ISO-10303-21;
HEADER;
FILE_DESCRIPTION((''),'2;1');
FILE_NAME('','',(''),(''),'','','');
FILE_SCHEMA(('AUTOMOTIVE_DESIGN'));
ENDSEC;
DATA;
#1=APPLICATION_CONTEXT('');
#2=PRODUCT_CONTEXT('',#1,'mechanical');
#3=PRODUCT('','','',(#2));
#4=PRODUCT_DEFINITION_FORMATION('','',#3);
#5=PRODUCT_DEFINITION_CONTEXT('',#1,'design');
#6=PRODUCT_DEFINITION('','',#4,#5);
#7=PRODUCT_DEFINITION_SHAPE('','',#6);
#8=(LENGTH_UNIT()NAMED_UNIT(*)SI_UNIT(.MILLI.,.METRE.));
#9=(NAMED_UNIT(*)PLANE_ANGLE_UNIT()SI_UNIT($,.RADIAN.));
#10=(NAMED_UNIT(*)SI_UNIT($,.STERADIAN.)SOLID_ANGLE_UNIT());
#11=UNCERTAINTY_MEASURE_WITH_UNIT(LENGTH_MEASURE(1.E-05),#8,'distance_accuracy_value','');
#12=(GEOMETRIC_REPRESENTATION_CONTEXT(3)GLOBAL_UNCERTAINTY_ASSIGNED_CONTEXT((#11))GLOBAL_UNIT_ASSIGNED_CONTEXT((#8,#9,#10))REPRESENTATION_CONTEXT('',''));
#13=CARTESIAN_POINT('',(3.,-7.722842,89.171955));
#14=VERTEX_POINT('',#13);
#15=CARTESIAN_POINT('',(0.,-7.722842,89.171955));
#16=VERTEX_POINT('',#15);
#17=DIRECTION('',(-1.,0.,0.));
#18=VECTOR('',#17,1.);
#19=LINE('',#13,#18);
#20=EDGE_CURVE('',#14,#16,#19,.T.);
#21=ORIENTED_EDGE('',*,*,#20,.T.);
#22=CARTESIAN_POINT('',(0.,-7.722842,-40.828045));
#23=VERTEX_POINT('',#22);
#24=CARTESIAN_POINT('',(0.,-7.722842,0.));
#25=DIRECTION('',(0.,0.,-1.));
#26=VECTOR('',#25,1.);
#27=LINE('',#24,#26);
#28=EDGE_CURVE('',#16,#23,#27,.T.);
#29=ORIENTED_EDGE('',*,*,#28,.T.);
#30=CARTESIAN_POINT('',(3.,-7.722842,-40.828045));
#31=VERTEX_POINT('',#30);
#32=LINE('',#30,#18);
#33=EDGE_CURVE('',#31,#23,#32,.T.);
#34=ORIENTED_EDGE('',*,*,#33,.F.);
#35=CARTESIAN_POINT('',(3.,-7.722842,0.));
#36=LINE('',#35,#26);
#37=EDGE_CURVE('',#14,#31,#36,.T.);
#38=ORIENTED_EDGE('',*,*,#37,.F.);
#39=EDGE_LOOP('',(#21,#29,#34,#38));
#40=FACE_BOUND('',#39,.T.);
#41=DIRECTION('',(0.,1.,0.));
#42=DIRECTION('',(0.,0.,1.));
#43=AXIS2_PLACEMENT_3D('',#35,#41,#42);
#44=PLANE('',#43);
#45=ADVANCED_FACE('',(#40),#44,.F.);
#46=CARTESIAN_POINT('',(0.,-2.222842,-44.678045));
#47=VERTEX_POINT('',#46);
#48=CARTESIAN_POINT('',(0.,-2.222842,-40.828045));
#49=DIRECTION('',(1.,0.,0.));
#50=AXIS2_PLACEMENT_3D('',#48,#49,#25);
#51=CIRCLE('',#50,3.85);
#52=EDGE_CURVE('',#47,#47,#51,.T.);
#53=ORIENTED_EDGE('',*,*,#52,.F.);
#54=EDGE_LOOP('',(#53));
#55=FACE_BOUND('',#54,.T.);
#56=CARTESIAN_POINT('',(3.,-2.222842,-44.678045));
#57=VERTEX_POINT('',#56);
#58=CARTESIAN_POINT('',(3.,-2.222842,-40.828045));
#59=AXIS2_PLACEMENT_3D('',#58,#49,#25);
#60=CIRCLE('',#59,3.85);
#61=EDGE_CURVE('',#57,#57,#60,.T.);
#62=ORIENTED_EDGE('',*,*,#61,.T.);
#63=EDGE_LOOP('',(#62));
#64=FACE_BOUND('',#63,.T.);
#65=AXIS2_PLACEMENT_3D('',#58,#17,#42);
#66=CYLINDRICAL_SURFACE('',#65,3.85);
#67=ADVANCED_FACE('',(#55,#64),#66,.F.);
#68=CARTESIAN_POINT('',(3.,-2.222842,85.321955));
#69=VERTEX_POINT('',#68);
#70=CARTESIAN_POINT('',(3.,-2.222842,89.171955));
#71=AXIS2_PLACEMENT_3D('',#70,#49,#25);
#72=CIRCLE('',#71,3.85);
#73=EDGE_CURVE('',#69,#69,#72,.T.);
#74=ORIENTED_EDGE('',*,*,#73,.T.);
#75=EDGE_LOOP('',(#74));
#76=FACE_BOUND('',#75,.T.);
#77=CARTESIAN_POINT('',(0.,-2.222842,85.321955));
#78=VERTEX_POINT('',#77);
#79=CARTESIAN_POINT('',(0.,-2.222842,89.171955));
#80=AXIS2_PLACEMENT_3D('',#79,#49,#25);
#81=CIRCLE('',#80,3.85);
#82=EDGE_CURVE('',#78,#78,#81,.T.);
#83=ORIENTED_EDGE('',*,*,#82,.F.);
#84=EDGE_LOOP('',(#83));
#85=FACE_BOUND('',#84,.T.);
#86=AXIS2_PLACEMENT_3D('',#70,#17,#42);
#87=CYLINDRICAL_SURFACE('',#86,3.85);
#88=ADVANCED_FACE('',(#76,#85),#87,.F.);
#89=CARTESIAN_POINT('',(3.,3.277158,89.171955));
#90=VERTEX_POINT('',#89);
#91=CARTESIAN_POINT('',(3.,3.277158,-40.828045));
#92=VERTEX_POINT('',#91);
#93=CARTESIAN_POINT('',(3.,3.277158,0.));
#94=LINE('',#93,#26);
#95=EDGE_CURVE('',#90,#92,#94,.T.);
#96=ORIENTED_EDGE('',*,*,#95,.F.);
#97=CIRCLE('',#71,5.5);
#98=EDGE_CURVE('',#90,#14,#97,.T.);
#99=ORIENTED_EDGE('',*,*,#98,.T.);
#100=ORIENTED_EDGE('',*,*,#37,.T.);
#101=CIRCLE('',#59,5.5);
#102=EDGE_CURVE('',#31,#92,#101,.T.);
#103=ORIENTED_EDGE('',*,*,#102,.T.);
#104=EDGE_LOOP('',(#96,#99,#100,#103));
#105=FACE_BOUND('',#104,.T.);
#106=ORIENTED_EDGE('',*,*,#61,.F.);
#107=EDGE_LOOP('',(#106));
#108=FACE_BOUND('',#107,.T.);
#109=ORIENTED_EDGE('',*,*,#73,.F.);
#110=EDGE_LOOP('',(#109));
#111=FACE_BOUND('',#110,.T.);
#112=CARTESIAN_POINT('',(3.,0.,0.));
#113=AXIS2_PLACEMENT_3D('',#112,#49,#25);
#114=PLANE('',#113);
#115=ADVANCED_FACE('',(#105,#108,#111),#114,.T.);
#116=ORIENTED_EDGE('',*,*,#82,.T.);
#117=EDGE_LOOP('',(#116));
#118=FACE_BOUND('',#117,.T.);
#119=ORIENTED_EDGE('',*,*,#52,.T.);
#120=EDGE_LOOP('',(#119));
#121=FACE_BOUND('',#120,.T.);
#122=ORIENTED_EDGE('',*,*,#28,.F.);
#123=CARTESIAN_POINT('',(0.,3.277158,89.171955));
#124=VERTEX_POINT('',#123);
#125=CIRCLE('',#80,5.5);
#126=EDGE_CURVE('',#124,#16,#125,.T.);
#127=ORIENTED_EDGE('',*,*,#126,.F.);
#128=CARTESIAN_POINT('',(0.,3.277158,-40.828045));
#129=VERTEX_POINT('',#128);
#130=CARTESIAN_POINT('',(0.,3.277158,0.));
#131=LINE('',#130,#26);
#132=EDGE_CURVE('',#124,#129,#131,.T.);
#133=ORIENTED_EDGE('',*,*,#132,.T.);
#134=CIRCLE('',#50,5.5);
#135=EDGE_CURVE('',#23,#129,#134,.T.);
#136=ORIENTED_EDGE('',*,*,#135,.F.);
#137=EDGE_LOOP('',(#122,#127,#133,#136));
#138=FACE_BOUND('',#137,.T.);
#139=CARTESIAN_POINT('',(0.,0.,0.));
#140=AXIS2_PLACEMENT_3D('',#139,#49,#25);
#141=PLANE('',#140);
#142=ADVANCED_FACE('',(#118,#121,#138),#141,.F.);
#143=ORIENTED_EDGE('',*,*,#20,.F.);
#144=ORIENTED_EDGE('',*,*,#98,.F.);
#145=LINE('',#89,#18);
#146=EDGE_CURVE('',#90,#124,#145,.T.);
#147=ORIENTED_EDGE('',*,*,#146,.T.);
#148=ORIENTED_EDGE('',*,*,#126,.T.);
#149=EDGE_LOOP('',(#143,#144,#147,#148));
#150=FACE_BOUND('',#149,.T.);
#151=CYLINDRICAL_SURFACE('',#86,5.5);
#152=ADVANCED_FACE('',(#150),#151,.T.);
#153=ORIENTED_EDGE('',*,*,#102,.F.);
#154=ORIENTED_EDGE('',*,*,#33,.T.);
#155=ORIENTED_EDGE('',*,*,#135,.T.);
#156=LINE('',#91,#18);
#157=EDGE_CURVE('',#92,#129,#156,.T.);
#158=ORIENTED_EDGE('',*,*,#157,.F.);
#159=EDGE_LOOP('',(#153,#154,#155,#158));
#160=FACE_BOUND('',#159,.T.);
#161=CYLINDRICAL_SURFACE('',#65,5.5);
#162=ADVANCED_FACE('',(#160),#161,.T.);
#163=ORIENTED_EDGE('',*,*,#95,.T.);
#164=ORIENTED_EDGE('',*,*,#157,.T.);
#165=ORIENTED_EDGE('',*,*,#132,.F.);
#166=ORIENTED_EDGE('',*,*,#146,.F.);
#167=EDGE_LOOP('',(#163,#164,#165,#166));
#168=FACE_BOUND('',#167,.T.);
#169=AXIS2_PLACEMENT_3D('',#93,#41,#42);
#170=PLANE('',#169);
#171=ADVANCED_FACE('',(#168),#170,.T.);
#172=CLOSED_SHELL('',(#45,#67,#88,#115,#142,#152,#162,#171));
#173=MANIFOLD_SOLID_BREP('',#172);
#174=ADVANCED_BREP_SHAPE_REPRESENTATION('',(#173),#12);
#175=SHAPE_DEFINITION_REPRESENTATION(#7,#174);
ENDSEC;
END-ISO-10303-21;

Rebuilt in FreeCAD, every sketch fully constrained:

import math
import FreeCAD as App
import Part
import Sketcher

V = App.Vector

doc = App.newDocument("Part")
body = doc.addObject("PartDesign::Body", "Body")

# Sketch on YZ plane
sketch1 = body.newObject("Sketcher::SketchObject", "Sketch")
sketch1.AttachmentSupport = (doc.getObject("YZ_Plane"), [""])
sketch1.MapMode = "FlatFace"
sketch1.addGeometry([
    Part.LineSegment(V(-8, 89, 0), V(-8, -41, 0)),  # 0
    Part.ArcOfCircle(Part.Circle(V(-2, -41, 0), V(0, 0, 1), 5), math.radians(180), math.radians(270)),  # 1
    Part.ArcOfCircle(Part.Circle(V(-2, -41, 0), V(0, 0, 1), 6), math.radians(-90), math.radians(0)),  # 2
    Part.LineSegment(V(3, -41, 0), V(3, 89, 0)),  # 3
    Part.ArcOfCircle(Part.Circle(V(-2, 89, 0), V(0, 0, 1), 6), math.radians(0), math.radians(180)),  # 4
], False)
sketch1.addConstraint([
    Sketcher.Constraint("Tangent", 0, 2, 1, 1),
    Sketcher.Constraint("Tangent", 1, 2, 2, 1),
    Sketcher.Constraint("Tangent", 2, 2, 3, 1),
    Sketcher.Constraint("Tangent", 3, 2, 4, 1),
    Sketcher.Constraint("Tangent", 4, 2, 0, 1),
    Sketcher.Constraint("Vertical", 0),
    Sketcher.Constraint("Vertical", 3),
    Sketcher.Constraint("Equal", 1, 2),
    Sketcher.Constraint("Vertical", 4, 3, 1, 2),
    Sketcher.Constraint("Radius", 1, 5.5),
    Sketcher.Constraint("DistanceY", 0, 2, 0, 1, 130.0),
    Sketcher.Constraint("DistanceX", 1, 3, -1, 1, 2.222842),
    Sketcher.Constraint("DistanceY", 1, 3, -1, 1, 40.828045),
])
pad1 = body.newObject("PartDesign::Pad", "Pad")
pad1.Profile = sketch1
pad1.Length = 3

# Sketch on YZ plane
sketch2 = body.newObject("Sketcher::SketchObject", "Sketch001")
sketch2.AttachmentSupport = (doc.getObject("YZ_Plane"), [""])
sketch2.MapMode = "FlatFace"
sketch2.addGeometry([
    Part.ArcOfCircle(Part.Circle(V(-2.2, 89.2, 0), V(0, 0, 1), 3.9), math.radians(0), math.radians(180)),  # 0
    Part.ArcOfCircle(Part.Circle(V(-2.2, 89.2, 0), V(0, 0, 1), 3.8), math.radians(180), math.radians(270)),  # 1
    Part.ArcOfCircle(Part.Circle(V(-2.2, 89.2, 0), V(0, 0, 1), 3.9), math.radians(-90), math.radians(0)),  # 2
    Part.ArcOfCircle(Part.Circle(V(-2.2, -40.8, 0), V(0, 0, 1), 3.9), math.radians(0), math.radians(90)),  # 3
    Part.ArcOfCircle(Part.Circle(V(-2.2, -40.8, 0), V(0, 0, 1), 3.9), math.radians(90), math.radians(180)),  # 4
    Part.ArcOfCircle(Part.Circle(V(-2.2, -40.8, 0), V(0, 0, 1), 3.8), math.radians(180), math.radians(270)),  # 5
    Part.ArcOfCircle(Part.Circle(V(-2.2, -40.8, 0), V(0, 0, 1), 3.9), math.radians(-90), math.radians(0)),  # 6
], False)
sketch2.addConstraint([
    Sketcher.Constraint("Tangent", 0, 2, 1, 1),
    Sketcher.Constraint("Tangent", 1, 2, 2, 1),
    Sketcher.Constraint("Tangent", 2, 2, 0, 1),
    Sketcher.Constraint("Tangent", 3, 2, 4, 1),
    Sketcher.Constraint("Tangent", 4, 2, 5, 1),
    Sketcher.Constraint("Tangent", 5, 2, 6, 1),
    Sketcher.Constraint("Tangent", 6, 2, 3, 1),
    Sketcher.Constraint("Equal", 2, 3),
    Sketcher.Constraint("Equal", 3, 4),
    Sketcher.Constraint("Horizontal", 2, 3, 0, 2),
    Sketcher.Constraint("Horizontal", 0, 2, 2, 2),
    Sketcher.Constraint("Horizontal", 6, 3, 4, 2),
    Sketcher.Constraint("Horizontal", 4, 2, 6, 2),
    Sketcher.Constraint("Vertical", 2, 3, 3, 3),
    Sketcher.Constraint("Vertical", 6, 3, 1, 2),
    Sketcher.Constraint("Vertical", 1, 2, 3, 2),
    Sketcher.Constraint("Vertical", 3, 2, 5, 2),
    Sketcher.Constraint("Radius", 0, 3.85),
    Sketcher.Constraint("DistanceY", 3, 3, 1, 3, 130.0),
    Sketcher.Constraint("DistanceX", 0, 3, -1, 1, 2.222842),
    Sketcher.Constraint("DistanceY", -1, 1, 0, 3, 89.171955),
])
pocket1 = body.newObject("PartDesign::Pocket", "Pocket")
pocket1.Profile = sketch2
pocket1.Type = "ThroughAll"
pocket1.Reversed = True

doc.recompute()
